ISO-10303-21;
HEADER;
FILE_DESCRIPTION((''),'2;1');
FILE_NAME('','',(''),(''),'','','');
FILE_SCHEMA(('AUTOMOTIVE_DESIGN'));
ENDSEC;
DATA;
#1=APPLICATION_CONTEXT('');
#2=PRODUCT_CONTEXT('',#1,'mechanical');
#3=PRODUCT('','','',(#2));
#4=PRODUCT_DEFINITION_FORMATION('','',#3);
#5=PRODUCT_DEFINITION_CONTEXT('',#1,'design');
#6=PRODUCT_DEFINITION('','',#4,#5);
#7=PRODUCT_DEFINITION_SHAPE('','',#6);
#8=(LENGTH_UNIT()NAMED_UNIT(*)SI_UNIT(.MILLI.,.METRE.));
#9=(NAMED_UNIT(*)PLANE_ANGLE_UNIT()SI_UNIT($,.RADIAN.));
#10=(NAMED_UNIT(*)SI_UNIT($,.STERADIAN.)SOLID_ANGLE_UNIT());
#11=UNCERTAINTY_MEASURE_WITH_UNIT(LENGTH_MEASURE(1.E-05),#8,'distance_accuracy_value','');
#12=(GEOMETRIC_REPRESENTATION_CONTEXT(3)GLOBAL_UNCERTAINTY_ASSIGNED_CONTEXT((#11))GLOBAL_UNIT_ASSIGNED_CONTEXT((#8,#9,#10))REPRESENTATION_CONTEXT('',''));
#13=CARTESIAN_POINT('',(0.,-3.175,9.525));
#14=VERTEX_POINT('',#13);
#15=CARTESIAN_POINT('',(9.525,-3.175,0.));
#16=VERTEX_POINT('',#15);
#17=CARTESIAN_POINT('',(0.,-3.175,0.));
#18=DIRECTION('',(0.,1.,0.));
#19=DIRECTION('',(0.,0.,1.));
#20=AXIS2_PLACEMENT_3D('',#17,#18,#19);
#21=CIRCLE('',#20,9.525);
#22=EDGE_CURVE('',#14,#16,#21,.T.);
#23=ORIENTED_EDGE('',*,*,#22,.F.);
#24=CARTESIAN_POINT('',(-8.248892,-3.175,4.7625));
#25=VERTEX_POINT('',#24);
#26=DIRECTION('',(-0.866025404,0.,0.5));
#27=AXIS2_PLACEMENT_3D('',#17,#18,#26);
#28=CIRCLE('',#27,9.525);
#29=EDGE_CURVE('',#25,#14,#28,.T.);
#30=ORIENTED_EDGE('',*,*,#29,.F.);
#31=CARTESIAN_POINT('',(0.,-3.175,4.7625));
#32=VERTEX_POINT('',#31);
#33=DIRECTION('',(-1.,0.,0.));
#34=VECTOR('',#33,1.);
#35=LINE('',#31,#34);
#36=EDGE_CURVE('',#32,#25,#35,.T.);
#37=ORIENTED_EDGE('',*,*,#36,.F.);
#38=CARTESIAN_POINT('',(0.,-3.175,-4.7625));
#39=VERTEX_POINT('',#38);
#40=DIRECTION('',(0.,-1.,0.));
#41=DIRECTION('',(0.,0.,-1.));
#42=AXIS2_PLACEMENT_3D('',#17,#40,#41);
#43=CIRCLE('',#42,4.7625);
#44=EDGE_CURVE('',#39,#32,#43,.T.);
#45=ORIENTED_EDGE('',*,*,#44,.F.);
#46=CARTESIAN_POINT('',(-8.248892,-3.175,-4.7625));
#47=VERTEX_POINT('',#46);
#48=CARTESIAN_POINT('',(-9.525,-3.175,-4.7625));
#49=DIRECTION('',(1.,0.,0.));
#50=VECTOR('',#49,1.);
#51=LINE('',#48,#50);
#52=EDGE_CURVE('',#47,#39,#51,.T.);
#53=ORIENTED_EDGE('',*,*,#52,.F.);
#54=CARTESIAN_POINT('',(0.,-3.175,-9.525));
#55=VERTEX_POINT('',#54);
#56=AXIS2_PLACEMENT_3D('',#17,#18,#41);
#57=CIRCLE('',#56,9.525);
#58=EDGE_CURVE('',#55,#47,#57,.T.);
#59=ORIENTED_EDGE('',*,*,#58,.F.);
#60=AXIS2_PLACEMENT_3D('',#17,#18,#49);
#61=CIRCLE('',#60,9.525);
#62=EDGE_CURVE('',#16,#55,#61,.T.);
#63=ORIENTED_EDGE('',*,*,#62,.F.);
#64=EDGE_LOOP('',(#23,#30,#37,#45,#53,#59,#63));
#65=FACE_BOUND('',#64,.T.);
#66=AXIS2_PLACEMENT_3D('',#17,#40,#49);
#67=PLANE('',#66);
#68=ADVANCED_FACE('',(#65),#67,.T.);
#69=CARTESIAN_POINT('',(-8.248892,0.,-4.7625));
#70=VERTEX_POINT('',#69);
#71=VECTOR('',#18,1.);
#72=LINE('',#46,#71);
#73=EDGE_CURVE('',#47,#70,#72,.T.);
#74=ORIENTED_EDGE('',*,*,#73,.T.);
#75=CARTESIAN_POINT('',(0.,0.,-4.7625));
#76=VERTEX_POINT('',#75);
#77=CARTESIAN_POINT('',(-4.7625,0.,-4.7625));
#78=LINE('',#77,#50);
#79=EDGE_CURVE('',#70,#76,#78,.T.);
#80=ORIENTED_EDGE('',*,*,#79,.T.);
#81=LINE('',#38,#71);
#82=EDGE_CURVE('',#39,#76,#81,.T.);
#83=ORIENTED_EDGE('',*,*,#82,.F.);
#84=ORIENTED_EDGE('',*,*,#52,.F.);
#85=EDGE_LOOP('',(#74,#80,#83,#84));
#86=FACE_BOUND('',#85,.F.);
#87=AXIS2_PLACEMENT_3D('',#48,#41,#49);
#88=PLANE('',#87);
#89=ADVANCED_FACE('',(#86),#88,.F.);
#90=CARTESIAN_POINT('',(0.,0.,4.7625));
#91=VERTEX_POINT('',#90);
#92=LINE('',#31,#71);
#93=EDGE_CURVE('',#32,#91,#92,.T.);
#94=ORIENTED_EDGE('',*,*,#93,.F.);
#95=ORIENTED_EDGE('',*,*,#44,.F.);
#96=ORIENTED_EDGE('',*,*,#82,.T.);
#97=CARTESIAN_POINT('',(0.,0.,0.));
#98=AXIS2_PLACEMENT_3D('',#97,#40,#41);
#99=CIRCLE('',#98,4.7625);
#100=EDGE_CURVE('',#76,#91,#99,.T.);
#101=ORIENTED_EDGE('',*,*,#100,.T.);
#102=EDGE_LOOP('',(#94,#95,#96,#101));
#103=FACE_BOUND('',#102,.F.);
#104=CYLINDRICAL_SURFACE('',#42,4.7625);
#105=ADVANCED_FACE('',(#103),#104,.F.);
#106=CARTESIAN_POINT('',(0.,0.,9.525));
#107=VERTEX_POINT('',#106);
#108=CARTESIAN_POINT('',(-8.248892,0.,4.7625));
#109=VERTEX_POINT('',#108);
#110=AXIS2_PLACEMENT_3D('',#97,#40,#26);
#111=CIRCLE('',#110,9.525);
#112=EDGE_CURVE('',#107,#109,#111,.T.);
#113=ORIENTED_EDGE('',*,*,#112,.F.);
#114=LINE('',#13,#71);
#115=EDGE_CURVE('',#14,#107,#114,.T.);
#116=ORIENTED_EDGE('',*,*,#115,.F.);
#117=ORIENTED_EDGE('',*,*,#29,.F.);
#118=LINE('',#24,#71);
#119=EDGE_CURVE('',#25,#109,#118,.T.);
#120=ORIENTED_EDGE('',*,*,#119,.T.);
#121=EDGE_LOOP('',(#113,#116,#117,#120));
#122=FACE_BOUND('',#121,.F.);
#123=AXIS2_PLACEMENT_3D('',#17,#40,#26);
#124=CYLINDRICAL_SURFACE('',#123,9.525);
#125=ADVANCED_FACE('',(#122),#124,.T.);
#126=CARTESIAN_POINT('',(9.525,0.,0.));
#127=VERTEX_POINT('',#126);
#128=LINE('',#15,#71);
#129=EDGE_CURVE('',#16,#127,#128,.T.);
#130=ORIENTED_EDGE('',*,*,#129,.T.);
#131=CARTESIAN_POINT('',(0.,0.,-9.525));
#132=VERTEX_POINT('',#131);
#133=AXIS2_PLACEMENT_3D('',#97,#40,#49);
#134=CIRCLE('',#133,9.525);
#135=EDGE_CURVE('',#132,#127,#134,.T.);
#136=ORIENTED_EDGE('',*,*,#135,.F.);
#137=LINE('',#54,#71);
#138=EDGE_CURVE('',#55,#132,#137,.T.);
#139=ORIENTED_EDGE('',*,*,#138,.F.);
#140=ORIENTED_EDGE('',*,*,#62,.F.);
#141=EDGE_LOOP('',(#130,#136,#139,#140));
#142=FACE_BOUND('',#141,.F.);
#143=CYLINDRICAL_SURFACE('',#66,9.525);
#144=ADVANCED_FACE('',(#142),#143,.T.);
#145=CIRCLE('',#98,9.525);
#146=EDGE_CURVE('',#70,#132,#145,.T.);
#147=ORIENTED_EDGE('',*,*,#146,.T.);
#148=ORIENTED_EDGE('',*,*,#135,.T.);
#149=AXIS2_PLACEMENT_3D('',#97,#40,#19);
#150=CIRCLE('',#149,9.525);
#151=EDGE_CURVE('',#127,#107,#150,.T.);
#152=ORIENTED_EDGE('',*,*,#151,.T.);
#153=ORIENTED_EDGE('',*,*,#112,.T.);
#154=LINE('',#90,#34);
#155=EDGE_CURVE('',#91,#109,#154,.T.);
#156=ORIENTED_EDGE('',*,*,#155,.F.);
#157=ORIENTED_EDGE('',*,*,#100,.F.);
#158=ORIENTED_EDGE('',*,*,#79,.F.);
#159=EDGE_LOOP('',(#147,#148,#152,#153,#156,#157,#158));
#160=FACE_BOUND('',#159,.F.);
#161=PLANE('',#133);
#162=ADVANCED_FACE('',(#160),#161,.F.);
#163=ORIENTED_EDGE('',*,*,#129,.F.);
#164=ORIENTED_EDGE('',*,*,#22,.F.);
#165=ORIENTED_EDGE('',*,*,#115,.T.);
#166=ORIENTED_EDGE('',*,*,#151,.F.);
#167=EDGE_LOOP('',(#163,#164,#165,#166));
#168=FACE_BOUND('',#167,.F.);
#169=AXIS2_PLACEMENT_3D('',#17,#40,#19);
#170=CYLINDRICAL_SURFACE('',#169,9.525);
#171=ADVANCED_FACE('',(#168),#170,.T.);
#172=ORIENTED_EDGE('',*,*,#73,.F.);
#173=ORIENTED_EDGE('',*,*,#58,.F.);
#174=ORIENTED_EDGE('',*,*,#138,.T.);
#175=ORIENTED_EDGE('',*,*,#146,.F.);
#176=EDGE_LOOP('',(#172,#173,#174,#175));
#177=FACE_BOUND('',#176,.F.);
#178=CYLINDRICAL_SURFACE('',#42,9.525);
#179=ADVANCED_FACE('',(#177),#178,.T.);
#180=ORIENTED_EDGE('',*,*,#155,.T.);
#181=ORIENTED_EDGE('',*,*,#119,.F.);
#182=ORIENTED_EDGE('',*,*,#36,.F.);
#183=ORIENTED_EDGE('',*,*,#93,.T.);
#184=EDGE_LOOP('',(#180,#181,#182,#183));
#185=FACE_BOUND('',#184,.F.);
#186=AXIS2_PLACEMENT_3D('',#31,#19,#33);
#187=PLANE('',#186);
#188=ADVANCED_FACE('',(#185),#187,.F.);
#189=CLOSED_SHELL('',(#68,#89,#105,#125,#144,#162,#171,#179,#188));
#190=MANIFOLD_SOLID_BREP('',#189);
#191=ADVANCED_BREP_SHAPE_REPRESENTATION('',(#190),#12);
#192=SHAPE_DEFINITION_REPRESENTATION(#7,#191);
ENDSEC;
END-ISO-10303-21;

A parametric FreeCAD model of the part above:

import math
import FreeCAD as App
import Part
import Sketcher
from FreeCAD import Vector
Q = App.Units.Quantity

doc = App.newDocument("Part")
body = doc.addObject("PartDesign::Body", "Body")

# Sketch on XZ plane
sketch1 = body.newObject("Sketcher::SketchObject", "Sketch")
sketch1.AttachmentSupport = (doc.getObject("XZ_Plane"), [""])
sketch1.MapMode = "FlatFace"
sketch1.addGeometry([
    Part.LineSegment(Vector(-10, 10, 0), Vector(-10, -10, 0)),
    Part.LineSegment(Vector(-10, -10, 0), Vector(10, -10, 0)),
    Part.LineSegment(Vector(10, -10, 0), Vector(10, 10, 0)),
    Part.LineSegment(Vector(10, 10, 0), Vector(-10, 10, 0)),
], False)
sketch1.addConstraint([
    Sketcher.Constraint("Coincident", 0, 2, 1, 1),
    Sketcher.Constraint("Coincident", 1, 2, 2, 1),
    Sketcher.Constraint("Coincident", 2, 2, 3, 1),
    Sketcher.Constraint("Coincident", 3, 2, 0, 1),
    Sketcher.Constraint("Vertical", 0),
    Sketcher.Constraint("Horizontal", 1),
    Sketcher.Constraint("Vertical", 2),
    Sketcher.Constraint("Horizontal", 3),
    Sketcher.Constraint("Symmetric", 0, 2, 2, 2, -1, 1),
    Sketcher.Constraint("Equal", 3, 0),
    Sketcher.Constraint("DistanceX", 1, 1, 1, 2, Q("0.75 in")),
])
pad1 = body.newObject("PartDesign::Pad", "Pad")
pad1.Profile = sketch1
pad1.Length = Q("0.125 in")

# Sketch on XZ plane
sketch2 = body.newObject("Sketcher::SketchObject", "Sketch001")
sketch2.AttachmentSupport = (doc.getObject("XZ_Plane"), [""])
sketch2.MapMode = "FlatFace"
sketch2.AttachmentOffset = App.Placement(Vector(0, 0, 0.125 * 25.4), App.Rotation())
sketch2.addGeometry([
    Part.LineSegment(Vector(0, 4.8, 0), Vector(-9.5, 4.8, 0)),
    Part.LineSegment(Vector(-9.5, 4.8, 0), Vector(-9.5, -4.8, 0)),
    Part.LineSegment(Vector(-9.5, -4.8, 0), Vector(0, -4.8, 0)),
    Part.ArcOfCircle(Part.Circle(Vector(0, 0, 0), Vector(0, 0, 1), 4.8), math.radians(-90), math.radians(90)),
], False)
sketch2.addConstraint([
    Sketcher.Constraint("Coincident", 0, 2, 1, 1),
    Sketcher.Constraint("Coincident", 1, 2, 2, 1),
    Sketcher.Constraint("Tangent", 2, 2, 3, 1),
    Sketcher.Constraint("Tangent", 3, 2, 0, 1),
    Sketcher.Constraint("Horizontal", 0),
    Sketcher.Constraint("Vertical", 1),
    Sketcher.Constraint("Horizontal", 2),
    Sketcher.Constraint("Coincident", 3, 3, -1, 1),
    Sketcher.Constraint("Equal", 2, 1),
    Sketcher.Constraint("Radius", 3, Q("0.1875 in")),
])
pocket1 = body.newObject("PartDesign::Pocket", "Pocket")
pocket1.Profile = sketch2
pocket1.Length = Q("1 in")

# Sketch on XZ plane
sketch3 = body.newObject("Sketcher::SketchObject", "Sketch002")
sketch3.AttachmentSupport = (doc.getObject("XZ_Plane"), [""])
sketch3.MapMode = "FlatFace"
sketch3.AttachmentOffset = App.Placement(Vector(0, 0, 0.125 * 25.4), App.Rotation())
sketch3.addGeometry([
    Part.ArcOfCircle(Part.Circle(Vector(0, 0, 0), Vector(0, 0, 1), 9.5), math.radians(90), math.radians(150)),  # 0
    Part.LineSegment(Vector(0, 9.5, 0), Vector(-9.5, 9.5, 0)),  # 1
    Part.LineSegment(Vector(-9.5, 9.5, 0), Vector(-9.5, 4.8, 0)),  # 2
    Part.LineSegment(Vector(-9.5, 4.8, 0), Vector(-8.2, 4.8, 0)),  # 3
    Part.ArcOfCircle(Part.Circle(Vector(0, 0, 0), Vector(0, 0, 1), 9.5), math.radians(0), math.radians(90)),  # 4
    Part.LineSegment(Vector(9.5, 0, 0), Vector(9.5, 9.5, 0)),  # 5
    Part.LineSegment(Vector(9.5, 9.5, 0), Vector(0, 9.5, 0)),  # 6
    Part.LineSegment(Vector(9.5, -9.5, 0), Vector(9.5, 0, 0)),  # 7
    Part.ArcOfCircle(Part.Circle(Vector(0, 0, 0), Vector(0, 0, 1), 9.5), math.radians(-90), math.radians(0)),  # 8
    Part.LineSegment(Vector(0, -9.5, 0), Vector(9.5, -9.5, 0)),  # 9
    Part.LineSegment(Vector(-9.5, -9.5, 0), Vector(0, -9.5, 0)),  # 10
    Part.ArcOfCircle(Part.Circle(Vector(0, 0, 0), Vector(0, 0, 1), 9.5), math.radians(-150), math.radians(-90)),  # 11
    Part.LineSegment(Vector(-8.2, -4.8, 0), Vector(-9.5, -4.8, 0)),  # 12
    Part.LineSegment(Vector(-9.5, -4.8, 0), Vector(-9.5, -9.5, 0)),  # 13
], False)
sketch3.addConstraint([
    Sketcher.Constraint("Tangent", 0, 1, 1, 1),
    Sketcher.Constraint("Coincident", 1, 2, 2, 1),
    Sketcher.Constraint("Coincident", 2, 2, 3, 1),
    Sketcher.Constraint("Coincident", 3, 2, 0, 2),
    Sketcher.Constraint("Tangent", 4, 1, 5, 1),
    Sketcher.Constraint("Coincident", 5, 2, 6, 1),
    Sketcher.Constraint("Tangent", 6, 2, 4, 2),
    Sketcher.Constraint("Tangent", 7, 2, 8, 2),
    Sketcher.Constraint("Tangent", 8, 1, 9, 1),
    Sketcher.Constraint("Coincident", 9, 2, 7, 1),
    Sketcher.Constraint("Tangent", 10, 2, 11, 2),
    Sketcher.Constraint("Coincident", 11, 1, 12, 1),
    Sketcher.Constraint("Coincident", 12, 2, 13, 1),
    Sketcher.Constraint("Coincident", 13, 2, 10, 1),
    Sketcher.Constraint("Horizontal", 1),
    Sketcher.Constraint("Vertical", 2),
    Sketcher.Constraint("Horizontal", 3),
    Sketcher.Constraint("Vertical", 5),
    Sketcher.Constraint("Horizontal", 6),
    Sketcher.Constraint("Vertical", 7),
    Sketcher.Constraint("Horizontal", 9),
    Sketcher.Constraint("Horizontal", 10),
    Sketcher.Constraint("Horizontal", 12),
    Sketcher.Constraint("Vertical", 13),
    Sketcher.Constraint("Coincident", 0, 3, -1, 1),
    Sketcher.Constraint("Coincident", 4, 3, -1, 1),
    Sketcher.Constraint("Coincident", 8, 3, -1, 1),
    Sketcher.Constraint("Coincident", 11, 3, -1, 1),
    Sketcher.Constraint("Equal", 0, 4),
    Sketcher.Constraint("Equal", 4, 8),
    Sketcher.Constraint("Equal", 8, 11),
    Sketcher.Constraint("Symmetric", 2, 2, 12, 2, -1),
    Sketcher.Constraint("Equal", 1, 6),
    Sketcher.Constraint("Radius", 0, Q("0.375 in")),
    Sketcher.Constraint("DistanceY", 2, 2, 2, 1, Q("0.1875 in")),
])
pocket2 = body.newObject("PartDesign::Pocket", "Pocket001")
pocket2.Profile = sketch3
pocket2.Length = Q("1 in")

doc.recompute()
